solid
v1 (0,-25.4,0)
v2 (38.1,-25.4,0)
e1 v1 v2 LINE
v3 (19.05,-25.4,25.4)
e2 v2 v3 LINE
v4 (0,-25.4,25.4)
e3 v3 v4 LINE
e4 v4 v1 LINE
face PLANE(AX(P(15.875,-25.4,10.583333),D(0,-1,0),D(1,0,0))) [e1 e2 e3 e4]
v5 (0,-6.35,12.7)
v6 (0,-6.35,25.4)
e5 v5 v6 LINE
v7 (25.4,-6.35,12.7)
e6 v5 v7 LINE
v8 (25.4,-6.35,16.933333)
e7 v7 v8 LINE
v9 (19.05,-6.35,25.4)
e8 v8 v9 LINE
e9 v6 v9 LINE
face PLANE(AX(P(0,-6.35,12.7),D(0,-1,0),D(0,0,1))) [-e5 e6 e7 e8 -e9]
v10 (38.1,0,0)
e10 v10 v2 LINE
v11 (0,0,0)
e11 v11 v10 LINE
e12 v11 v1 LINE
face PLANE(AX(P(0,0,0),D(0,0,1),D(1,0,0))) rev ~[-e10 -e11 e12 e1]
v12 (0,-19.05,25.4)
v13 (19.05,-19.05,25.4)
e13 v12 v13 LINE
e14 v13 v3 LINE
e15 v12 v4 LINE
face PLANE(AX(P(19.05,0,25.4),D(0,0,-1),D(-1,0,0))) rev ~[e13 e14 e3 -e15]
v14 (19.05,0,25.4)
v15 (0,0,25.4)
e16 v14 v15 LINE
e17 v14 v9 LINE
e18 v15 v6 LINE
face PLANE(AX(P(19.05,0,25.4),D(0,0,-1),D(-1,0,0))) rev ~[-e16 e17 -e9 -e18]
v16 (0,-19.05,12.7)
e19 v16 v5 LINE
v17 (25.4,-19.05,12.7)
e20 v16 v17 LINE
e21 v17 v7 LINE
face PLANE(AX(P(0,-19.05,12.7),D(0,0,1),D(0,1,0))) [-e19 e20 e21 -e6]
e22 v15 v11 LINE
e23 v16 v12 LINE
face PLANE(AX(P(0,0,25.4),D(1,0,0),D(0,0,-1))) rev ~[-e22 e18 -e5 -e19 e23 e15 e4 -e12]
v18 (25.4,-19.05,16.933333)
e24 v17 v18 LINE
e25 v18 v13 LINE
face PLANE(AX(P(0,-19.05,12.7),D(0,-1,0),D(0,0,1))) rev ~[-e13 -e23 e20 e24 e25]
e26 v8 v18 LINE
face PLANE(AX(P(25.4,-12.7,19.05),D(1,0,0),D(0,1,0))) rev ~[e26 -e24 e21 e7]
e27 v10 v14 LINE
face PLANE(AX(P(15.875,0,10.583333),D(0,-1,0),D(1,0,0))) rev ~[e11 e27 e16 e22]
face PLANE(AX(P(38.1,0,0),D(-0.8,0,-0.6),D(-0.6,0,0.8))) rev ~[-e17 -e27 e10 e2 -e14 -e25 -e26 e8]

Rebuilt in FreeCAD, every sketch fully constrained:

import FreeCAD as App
import Part
import Sketcher
from FreeCAD import Vector
Q = App.Units.Quantity

doc = App.newDocument("Part")
body = doc.addObject("PartDesign::Body", "Body")

sketch1 = body.newObject("Sketcher::SketchObject", "Sketch")
sketch1.AttachmentSupport = (doc.getObject("XZ_Plane"), [""])
sketch1.MapMode = "FlatFace"
sketch1.addGeometry([
    Part.LineSegment(Vector(0, 25.4, 0), Vector(0, 0, 0)),
    Part.LineSegment(Vector(0, 0, 0), Vector(38.1, 0, 0)),
    Part.LineSegment(Vector(38.1, 0, 0), Vector(19.05, 25.4, 0)),
    Part.LineSegment(Vector(19.05, 25.4, 0), Vector(0, 25.4, 0)),
], False)
sketch1.addConstraint([
    Sketcher.Constraint("Coincident", 0, 2, 1, 1),
    Sketcher.Constraint("Coincident", 1, 2, 2, 1),
    Sketcher.Constraint("Coincident", 2, 2, 3, 1),
    Sketcher.Constraint("Coincident", 3, 2, 0, 1),
    Sketcher.Constraint("Vertical", 0),
    Sketcher.Constraint("Horizontal", 1),
    Sketcher.Constraint("Horizontal", 3),
    Sketcher.Constraint("Coincident", 0, 2, -1, 1),
    Sketcher.Constraint("DistanceY", 0, 2, 0, 1, Q("1 in")),
    Sketcher.Constraint("DistanceX", 1, 1, 1, 2, Q("1.5 in")),
    Sketcher.Constraint("DistanceX", 3, 2, 3, 1, Q("0.75 in")),
])
pad1 = body.newObject("PartDesign::Pad", "Pad")
pad1.Profile = sketch1
pad1.Length = Q("1 in")

sketch2 = body.newObject("Sketcher::SketchObject", "Sketch001")
sketch2.AttachmentSupport = (doc.getObject("YZ_Plane"), [""])
sketch2.MapMode = "FlatFace"
sketch2.addGeometry([
    Part.LineSegment(Vector(-19.05, 25.4, 0), Vector(-19.05, 12.7, 0)),
    Part.LineSegment(Vector(-19.05, 12.7, 0), Vector(-6.35, 12.7, 0)),
    Part.LineSegment(Vector(-6.35, 12.7, 0), Vector(-6.35, 25.4, 0)),
    Part.LineSegment(Vector(-6.35, 25.4, 0), Vector(-19.05, 25.4, 0)),
], False)
sketch2.addConstraint([
    Sketcher.Constraint("Coincident", 0, 2, 1, 1),
    Sketcher.Constraint("Coincident", 1, 2, 2, 1),
    Sketcher.Constraint("Coincident", 2, 2, 3, 1),
    Sketcher.Constraint("Coincident", 3, 2, 0, 1),
    Sketcher.Constraint("Vertical", 0),
    Sketcher.Constraint("Horizontal", 1),
    Sketcher.Constraint("Vertical", 2),
    Sketcher.Constraint("Horizontal", 3),
    Sketcher.Constraint("Equal", 3, 0),
    Sketcher.Constraint("DistanceX", 1, 1, 1, 2, Q("0.5 in")),
    Sketcher.Constraint("DistanceY", -1, 1, 2, 2, Q("1 in")),
    Sketcher.Constraint("DistanceX", 0, 2, -1, 1, Q("0.75 in")),
])
pocket1 = body.newObject("PartDesign::Pocket", "Pocket")
pocket1.Profile = sketch2
pocket1.Length = Q("1 in")
pocket1.Reversed = True

doc.recompute()
